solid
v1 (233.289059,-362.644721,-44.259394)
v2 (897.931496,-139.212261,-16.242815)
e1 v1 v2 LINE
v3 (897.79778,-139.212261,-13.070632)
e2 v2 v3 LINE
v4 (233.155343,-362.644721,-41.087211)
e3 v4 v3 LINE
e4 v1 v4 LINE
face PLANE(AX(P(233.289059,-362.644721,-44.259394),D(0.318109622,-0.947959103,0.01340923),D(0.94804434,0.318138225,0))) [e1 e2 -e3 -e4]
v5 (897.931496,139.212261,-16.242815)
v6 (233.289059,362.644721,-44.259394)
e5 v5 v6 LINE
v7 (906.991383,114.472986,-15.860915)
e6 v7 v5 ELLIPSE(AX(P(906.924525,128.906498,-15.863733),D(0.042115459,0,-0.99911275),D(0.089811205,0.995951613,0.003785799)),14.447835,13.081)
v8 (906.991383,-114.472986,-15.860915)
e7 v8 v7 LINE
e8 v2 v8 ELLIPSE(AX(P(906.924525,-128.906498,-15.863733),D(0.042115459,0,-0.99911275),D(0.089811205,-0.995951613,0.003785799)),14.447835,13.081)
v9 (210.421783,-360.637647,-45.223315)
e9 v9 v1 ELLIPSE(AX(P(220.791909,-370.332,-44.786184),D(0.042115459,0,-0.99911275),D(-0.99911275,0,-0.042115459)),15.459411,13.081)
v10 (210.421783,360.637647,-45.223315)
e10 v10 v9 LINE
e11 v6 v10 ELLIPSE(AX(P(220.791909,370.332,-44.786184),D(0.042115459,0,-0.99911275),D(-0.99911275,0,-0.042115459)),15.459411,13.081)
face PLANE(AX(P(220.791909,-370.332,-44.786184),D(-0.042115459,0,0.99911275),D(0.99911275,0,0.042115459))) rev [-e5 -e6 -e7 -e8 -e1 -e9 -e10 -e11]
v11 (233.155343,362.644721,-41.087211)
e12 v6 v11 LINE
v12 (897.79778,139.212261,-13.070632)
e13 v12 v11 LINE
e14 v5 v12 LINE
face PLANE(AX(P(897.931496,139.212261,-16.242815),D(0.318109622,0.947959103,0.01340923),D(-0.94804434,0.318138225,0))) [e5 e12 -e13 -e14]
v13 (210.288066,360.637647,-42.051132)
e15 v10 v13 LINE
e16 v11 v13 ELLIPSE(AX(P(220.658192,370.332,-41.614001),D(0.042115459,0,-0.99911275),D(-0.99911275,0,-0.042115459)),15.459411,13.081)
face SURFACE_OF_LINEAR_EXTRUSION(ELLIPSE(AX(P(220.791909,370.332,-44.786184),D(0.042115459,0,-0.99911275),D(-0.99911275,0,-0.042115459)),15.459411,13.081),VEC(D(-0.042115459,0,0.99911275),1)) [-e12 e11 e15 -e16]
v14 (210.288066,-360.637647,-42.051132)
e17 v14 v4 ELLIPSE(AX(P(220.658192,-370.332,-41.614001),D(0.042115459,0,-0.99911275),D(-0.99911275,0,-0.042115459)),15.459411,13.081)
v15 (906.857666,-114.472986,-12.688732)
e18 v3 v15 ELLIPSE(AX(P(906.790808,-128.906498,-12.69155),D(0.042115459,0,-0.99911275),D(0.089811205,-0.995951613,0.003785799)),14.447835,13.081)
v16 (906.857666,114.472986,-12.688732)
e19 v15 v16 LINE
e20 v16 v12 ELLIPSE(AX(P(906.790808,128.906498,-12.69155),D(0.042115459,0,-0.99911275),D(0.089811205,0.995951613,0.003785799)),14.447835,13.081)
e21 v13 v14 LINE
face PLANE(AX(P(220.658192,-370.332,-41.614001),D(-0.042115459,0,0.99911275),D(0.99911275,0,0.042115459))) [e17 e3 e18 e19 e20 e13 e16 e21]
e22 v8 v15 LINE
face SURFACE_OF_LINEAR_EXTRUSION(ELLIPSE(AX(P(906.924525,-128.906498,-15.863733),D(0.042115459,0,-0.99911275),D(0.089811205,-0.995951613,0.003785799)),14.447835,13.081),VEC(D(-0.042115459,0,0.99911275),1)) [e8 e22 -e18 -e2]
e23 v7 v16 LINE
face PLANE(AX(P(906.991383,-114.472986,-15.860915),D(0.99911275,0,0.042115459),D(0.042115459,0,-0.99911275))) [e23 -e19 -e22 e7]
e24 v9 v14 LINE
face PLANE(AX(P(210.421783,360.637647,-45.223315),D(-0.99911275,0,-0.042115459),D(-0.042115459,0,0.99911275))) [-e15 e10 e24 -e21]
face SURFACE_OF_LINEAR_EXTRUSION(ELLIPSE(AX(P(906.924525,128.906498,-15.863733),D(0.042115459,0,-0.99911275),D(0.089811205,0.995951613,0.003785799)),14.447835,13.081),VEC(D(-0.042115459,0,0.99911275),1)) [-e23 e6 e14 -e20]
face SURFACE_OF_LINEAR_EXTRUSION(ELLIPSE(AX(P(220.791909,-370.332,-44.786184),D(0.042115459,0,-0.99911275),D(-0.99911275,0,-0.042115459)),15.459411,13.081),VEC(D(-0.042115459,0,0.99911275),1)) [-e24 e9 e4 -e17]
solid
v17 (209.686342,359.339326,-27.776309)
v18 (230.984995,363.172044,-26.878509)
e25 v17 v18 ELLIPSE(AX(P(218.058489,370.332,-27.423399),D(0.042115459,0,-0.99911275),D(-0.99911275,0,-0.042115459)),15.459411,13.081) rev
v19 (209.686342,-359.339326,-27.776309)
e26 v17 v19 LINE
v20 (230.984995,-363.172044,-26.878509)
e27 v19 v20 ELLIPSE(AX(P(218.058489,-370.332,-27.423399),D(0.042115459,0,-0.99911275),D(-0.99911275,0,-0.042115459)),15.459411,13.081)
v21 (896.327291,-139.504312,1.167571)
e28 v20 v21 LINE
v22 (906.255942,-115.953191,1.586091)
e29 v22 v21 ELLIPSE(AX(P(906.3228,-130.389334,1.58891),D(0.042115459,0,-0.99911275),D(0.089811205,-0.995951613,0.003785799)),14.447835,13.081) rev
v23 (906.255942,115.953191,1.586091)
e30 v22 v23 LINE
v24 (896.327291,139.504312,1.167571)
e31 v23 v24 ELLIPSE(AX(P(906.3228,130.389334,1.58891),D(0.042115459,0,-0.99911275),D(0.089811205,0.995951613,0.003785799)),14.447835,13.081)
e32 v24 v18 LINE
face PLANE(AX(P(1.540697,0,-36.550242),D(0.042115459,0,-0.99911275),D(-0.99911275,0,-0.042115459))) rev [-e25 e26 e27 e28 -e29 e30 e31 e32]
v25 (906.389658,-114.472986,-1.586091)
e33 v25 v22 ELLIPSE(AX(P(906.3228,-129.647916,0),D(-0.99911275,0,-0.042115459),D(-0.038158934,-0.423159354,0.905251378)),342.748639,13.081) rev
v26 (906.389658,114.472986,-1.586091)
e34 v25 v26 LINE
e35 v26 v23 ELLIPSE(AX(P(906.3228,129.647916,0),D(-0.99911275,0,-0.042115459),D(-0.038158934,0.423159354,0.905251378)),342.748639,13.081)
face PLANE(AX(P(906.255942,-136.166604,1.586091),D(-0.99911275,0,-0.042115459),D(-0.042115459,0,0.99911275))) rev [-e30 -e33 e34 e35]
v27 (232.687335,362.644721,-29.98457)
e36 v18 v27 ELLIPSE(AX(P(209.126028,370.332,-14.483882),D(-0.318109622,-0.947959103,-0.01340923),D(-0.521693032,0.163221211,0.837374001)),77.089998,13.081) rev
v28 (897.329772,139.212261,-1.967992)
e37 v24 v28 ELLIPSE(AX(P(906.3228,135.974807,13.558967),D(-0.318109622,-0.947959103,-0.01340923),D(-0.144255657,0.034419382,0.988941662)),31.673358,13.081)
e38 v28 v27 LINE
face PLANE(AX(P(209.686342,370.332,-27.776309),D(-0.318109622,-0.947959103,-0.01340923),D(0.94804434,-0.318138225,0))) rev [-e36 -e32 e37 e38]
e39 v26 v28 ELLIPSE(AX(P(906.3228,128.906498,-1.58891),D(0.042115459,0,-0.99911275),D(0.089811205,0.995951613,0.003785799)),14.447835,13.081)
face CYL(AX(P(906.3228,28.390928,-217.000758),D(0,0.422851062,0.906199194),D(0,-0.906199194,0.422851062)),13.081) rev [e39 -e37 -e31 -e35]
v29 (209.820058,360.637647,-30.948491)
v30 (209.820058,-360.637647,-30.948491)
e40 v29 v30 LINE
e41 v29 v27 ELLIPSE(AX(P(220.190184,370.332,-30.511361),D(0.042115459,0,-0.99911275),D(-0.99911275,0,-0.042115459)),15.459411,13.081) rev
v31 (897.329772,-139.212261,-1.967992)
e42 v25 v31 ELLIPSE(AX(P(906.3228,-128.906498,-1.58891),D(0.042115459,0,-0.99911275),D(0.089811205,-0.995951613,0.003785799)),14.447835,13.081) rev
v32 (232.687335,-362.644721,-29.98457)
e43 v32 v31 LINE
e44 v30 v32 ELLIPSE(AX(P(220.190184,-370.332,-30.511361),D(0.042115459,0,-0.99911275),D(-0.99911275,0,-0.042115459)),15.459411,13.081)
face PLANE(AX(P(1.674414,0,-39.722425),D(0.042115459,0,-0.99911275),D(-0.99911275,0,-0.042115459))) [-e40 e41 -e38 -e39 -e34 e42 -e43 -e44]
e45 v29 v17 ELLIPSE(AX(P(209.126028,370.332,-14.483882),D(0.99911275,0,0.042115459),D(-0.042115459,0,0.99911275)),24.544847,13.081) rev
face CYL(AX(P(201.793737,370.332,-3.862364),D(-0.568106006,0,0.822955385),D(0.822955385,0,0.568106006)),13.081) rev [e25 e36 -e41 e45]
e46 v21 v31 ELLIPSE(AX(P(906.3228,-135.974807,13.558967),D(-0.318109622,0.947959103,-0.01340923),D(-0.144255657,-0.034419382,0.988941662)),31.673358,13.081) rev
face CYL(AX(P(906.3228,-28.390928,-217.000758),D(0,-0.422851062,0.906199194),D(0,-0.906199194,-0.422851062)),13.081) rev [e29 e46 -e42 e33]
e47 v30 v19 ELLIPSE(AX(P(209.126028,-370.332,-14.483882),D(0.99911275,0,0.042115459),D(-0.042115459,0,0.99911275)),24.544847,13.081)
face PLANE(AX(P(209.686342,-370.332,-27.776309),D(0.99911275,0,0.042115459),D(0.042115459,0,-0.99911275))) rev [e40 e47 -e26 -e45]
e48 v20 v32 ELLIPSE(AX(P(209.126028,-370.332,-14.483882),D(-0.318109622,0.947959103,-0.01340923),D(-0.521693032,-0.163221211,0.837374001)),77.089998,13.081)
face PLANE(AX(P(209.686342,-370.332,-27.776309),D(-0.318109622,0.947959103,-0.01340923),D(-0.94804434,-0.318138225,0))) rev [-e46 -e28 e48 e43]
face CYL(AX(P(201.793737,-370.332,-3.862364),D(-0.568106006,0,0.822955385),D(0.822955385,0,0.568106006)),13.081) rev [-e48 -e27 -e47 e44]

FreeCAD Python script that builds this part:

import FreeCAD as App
import Part
import Sketcher
from FreeCAD import Vector
Q = App.Units.Quantity

doc = App.newDocument("Part")
body = doc.addObject("PartDesign::Body", "Body")

sketch1 = body.newObject("Sketcher::SketchObject", "Sketch")
sketch1.Placement = App.Placement(Vector(1.607556, 0, -38.136334), App.Rotation(Vector(0.99911275, 0, 0.042115459), Vector(0, 0.999999999, 0), Vector(-0.042115459, 0, 0.99911275), "ZXY"))
sketch1.addGeometry(Part.LineSegment(Vector(906, 136, 0), Vector(208, 370, 0)), False)
sketch1.addGeometry(Part.LineSegment(Vector(208, 370, 0), Vector(208, -370, 0)), False)
sketch1.addGeometry(Part.LineSegment(Vector(208, -370, 0), Vector(906, -136, 0)), False)
sketch1.addGeometry(Part.LineSegment(Vector(906, -136, 0), Vector(906, 136, 0)), False)
sketch1.addConstraint(Sketcher.Constraint("Coincident", 0, 2, 1, 1))
sketch1.addConstraint(Sketcher.Constraint("Coincident", 1, 2, 2, 1))
sketch1.addConstraint(Sketcher.Constraint("Coincident", 2, 2, 3, 1))
sketch1.addConstraint(Sketcher.Constraint("Coincident", 3, 2, 0, 1))
sketch1.addConstraint(Sketcher.Constraint("Vertical", 1))
sketch1.addConstraint(Sketcher.Constraint("Vertical", 3))
sketch1.addConstraint(Sketcher.Constraint("Equal", 0, 2))
sketch1.addConstraint(Sketcher.Constraint("DistanceY", 1, 2, 1, 1, Q("29.1599999 in")))
sketch1.addConstraint(Sketcher.Constraint("DistanceY", -1, 1, 0, 2, Q("14.58 in")))
sketch1.addConstraint(Sketcher.Constraint("DistanceY", 3, 1, 3, 2, 272.333207))
sketch1.addConstraint(Sketcher.Constraint("DistanceX", 1, 2, 2, 2, 697.188179))
sketch1.addConstraint(Sketcher.Constraint("DistanceX", -1, 1, 0, 2, 208.330485))
pad1 = body.newObject("PartDesign::Pad", "Pad")
pad1.Profile = sketch1
pad1.Length = Q("0.125 in")
pad1.Midplane = True

sketch2 = body.newObject("Sketcher::SketchObject", "Sketch001")
sketch2.Placement = App.Placement(Vector(906.3228, 181.675109, 111.497888), App.Rotation(Vector(1, 0, 0), Vector(0, 0.906199194, -0.422851062), Vector(0, 0.422851062, 0.906199194), "ZXY"))
sketch2.addGeometry(Part.Circle(Vector(0, 0, 0), Vector(0, 0, 1), 13), False)
sketch2.addConstraint(Sketcher.Constraint("Coincident", 0, 3, -1, 1))
sketch2.addConstraint(Sketcher.Constraint("Diameter", 0, Q("1.03 in")))
pocket1 = body.newObject("PartDesign::Pocket", "Pocket")
pocket1.Profile = sketch2
pocket1.Type = "ThroughAll"
doc.recompute()

mirrored = body.newObject("PartDesign::Mirrored", "Mirrored")
mirrored.Originals = [pocket1]
mirrored.MirrorPlane = (doc.getObject("XZ_Plane"), [""])
body.Tip = mirrored

sketch3 = body.newObject("Sketcher::SketchObject", "Sketch002")
sketch3.Placement = App.Placement(Vector(18.074016, 370.332, 262.273063), App.Rotation(Vector(-0.822955385, 0, -0.568106006), Vector(0, 1, 0), Vector(0.568106006, 0, -0.822955385), "ZXY"))
sketch3.addGeometry(Part.Circle(Vector(0, 0, 0), Vector(0, 0, 1), 13), False)
sketch3.addConstraint(Sketcher.Constraint("Coincident", 0, 3, -1, 1))
sketch3.addConstraint(Sketcher.Constraint("Diameter", 0, Q("1.03 in")))
pocket2 = body.newObject("PartDesign::Pocket", "Pocket001")
pocket2.Profile = sketch3
pocket2.Length = 2388.350118
pocket2.Midplane = True
doc.recompute()

mirrored2 = body.newObject("PartDesign::Mirrored", "Mirrored001")
mirrored2.Originals = [pocket2]
mirrored2.MirrorPlane = (doc.getObject("XZ_Plane"), [""])
body.Tip = mirrored2
body2 = doc.addObject("PartDesign::Body", "Body001")

sketch4 = body2.newObject("Sketcher::SketchObject", "Sketch003")
sketch4.Placement = App.Placement(Vector(2.142422, 0, -50.825066), App.Rotation(Vector(0.99911275, 0, 0.042115459), Vector(0, 0.999999999, 0), Vector(-0.042115459, 0, 0.99911275), "ZXY"))
sketch4.addGeometry(Part.LineSegment(Vector(208.330485, 360.637647, 0), Vector(208.330485, -360.637647, 0)), False)
sketch4.addGeometry(Part.BSplineCurve([Vector(231.218069, -362.64472, 0), Vector(221.095703, -350.852329, 0), Vector(208.330485, -360.637647, 0)], [3, 3], [3.769765679, 5.44847537], False, 2, [1, 0.667943097, 1], False), False)
sketch4.addGeometry(Part.LineSegment(Vector(231.218069, -362.64472, 0), Vector(896.450732, -139.21226, 0)), False)
sketch4.addGeometry(Part.BSplineCurve([Vector(905.518665, -114.472986, 0), Vector(872.399197, -113.635489, 0), Vector(896.450732, -139.21226, 0)], [3, 3], [3.037122544, 5.425802301], False, 2, [1, 0.367627377, 1], False), False)
sketch4.addGeometry(Part.LineSegment(Vector(905.518665, -114.472986, 0), Vector(905.518665, 114.472986, 0)), False)
sketch4.addGeometry(Part.BSplineCurve([Vector(896.450732, 139.21226, 0), Vector(872.399197, 113.635489, 0), Vector(905.518665, 114.472986, 0)], [3, 3], [0.857383007, 3.246062763], False, 2, [1, 0.367627377, 1], False), False)
sketch4.addGeometry(Part.LineSegment(Vector(896.450732, 139.21226, 0), Vector(231.218069, 362.64472, 0)), False)
sketch4.addGeometry(Part.BSplineCurve([Vector(208.330485, 360.637647, 0), Vector(221.095703, 350.852329, 0), Vector(231.218069, 362.64472, 0)], [3, 3], [0.834709937, 2.513419628], False, 2, [1, 0.667943097, 1], False), False)
sketch4.addConstraint(Sketcher.Constraint("Block", 1))
sketch4.addConstraint(Sketcher.Constraint("Block", 3))
sketch4.addConstraint(Sketcher.Constraint("Block", 5))
sketch4.addConstraint(Sketcher.Constraint("Block", 7))
sketch4.addConstraint(Sketcher.Constraint("Coincident", 0, 2, 1, 2))
sketch4.addConstraint(Sketcher.Constraint("Coincident", 1, 1, 2, 1))
sketch4.addConstraint(Sketcher.Constraint("Coincident", 2, 2, 3, 2))
sketch4.addConstraint(Sketcher.Constraint("Coincident", 3, 1, 4, 1))
sketch4.addConstraint(Sketcher.Constraint("Coincident", 4, 2, 5, 2))
sketch4.addConstraint(Sketcher.Constraint("Coincident", 5, 1, 6, 1))
sketch4.addConstraint(Sketcher.Constraint("Coincident", 6, 2, 7, 2))
sketch4.addConstraint(Sketcher.Constraint("Coincident", 7, 1, 0, 1))
pad2 = body2.newObject("PartDesign::Pad", "Pad001")
pad2.Profile = sketch4
pad2.Length = Q("0.125 in")
pad2.Reversed = True

doc.recompute()
